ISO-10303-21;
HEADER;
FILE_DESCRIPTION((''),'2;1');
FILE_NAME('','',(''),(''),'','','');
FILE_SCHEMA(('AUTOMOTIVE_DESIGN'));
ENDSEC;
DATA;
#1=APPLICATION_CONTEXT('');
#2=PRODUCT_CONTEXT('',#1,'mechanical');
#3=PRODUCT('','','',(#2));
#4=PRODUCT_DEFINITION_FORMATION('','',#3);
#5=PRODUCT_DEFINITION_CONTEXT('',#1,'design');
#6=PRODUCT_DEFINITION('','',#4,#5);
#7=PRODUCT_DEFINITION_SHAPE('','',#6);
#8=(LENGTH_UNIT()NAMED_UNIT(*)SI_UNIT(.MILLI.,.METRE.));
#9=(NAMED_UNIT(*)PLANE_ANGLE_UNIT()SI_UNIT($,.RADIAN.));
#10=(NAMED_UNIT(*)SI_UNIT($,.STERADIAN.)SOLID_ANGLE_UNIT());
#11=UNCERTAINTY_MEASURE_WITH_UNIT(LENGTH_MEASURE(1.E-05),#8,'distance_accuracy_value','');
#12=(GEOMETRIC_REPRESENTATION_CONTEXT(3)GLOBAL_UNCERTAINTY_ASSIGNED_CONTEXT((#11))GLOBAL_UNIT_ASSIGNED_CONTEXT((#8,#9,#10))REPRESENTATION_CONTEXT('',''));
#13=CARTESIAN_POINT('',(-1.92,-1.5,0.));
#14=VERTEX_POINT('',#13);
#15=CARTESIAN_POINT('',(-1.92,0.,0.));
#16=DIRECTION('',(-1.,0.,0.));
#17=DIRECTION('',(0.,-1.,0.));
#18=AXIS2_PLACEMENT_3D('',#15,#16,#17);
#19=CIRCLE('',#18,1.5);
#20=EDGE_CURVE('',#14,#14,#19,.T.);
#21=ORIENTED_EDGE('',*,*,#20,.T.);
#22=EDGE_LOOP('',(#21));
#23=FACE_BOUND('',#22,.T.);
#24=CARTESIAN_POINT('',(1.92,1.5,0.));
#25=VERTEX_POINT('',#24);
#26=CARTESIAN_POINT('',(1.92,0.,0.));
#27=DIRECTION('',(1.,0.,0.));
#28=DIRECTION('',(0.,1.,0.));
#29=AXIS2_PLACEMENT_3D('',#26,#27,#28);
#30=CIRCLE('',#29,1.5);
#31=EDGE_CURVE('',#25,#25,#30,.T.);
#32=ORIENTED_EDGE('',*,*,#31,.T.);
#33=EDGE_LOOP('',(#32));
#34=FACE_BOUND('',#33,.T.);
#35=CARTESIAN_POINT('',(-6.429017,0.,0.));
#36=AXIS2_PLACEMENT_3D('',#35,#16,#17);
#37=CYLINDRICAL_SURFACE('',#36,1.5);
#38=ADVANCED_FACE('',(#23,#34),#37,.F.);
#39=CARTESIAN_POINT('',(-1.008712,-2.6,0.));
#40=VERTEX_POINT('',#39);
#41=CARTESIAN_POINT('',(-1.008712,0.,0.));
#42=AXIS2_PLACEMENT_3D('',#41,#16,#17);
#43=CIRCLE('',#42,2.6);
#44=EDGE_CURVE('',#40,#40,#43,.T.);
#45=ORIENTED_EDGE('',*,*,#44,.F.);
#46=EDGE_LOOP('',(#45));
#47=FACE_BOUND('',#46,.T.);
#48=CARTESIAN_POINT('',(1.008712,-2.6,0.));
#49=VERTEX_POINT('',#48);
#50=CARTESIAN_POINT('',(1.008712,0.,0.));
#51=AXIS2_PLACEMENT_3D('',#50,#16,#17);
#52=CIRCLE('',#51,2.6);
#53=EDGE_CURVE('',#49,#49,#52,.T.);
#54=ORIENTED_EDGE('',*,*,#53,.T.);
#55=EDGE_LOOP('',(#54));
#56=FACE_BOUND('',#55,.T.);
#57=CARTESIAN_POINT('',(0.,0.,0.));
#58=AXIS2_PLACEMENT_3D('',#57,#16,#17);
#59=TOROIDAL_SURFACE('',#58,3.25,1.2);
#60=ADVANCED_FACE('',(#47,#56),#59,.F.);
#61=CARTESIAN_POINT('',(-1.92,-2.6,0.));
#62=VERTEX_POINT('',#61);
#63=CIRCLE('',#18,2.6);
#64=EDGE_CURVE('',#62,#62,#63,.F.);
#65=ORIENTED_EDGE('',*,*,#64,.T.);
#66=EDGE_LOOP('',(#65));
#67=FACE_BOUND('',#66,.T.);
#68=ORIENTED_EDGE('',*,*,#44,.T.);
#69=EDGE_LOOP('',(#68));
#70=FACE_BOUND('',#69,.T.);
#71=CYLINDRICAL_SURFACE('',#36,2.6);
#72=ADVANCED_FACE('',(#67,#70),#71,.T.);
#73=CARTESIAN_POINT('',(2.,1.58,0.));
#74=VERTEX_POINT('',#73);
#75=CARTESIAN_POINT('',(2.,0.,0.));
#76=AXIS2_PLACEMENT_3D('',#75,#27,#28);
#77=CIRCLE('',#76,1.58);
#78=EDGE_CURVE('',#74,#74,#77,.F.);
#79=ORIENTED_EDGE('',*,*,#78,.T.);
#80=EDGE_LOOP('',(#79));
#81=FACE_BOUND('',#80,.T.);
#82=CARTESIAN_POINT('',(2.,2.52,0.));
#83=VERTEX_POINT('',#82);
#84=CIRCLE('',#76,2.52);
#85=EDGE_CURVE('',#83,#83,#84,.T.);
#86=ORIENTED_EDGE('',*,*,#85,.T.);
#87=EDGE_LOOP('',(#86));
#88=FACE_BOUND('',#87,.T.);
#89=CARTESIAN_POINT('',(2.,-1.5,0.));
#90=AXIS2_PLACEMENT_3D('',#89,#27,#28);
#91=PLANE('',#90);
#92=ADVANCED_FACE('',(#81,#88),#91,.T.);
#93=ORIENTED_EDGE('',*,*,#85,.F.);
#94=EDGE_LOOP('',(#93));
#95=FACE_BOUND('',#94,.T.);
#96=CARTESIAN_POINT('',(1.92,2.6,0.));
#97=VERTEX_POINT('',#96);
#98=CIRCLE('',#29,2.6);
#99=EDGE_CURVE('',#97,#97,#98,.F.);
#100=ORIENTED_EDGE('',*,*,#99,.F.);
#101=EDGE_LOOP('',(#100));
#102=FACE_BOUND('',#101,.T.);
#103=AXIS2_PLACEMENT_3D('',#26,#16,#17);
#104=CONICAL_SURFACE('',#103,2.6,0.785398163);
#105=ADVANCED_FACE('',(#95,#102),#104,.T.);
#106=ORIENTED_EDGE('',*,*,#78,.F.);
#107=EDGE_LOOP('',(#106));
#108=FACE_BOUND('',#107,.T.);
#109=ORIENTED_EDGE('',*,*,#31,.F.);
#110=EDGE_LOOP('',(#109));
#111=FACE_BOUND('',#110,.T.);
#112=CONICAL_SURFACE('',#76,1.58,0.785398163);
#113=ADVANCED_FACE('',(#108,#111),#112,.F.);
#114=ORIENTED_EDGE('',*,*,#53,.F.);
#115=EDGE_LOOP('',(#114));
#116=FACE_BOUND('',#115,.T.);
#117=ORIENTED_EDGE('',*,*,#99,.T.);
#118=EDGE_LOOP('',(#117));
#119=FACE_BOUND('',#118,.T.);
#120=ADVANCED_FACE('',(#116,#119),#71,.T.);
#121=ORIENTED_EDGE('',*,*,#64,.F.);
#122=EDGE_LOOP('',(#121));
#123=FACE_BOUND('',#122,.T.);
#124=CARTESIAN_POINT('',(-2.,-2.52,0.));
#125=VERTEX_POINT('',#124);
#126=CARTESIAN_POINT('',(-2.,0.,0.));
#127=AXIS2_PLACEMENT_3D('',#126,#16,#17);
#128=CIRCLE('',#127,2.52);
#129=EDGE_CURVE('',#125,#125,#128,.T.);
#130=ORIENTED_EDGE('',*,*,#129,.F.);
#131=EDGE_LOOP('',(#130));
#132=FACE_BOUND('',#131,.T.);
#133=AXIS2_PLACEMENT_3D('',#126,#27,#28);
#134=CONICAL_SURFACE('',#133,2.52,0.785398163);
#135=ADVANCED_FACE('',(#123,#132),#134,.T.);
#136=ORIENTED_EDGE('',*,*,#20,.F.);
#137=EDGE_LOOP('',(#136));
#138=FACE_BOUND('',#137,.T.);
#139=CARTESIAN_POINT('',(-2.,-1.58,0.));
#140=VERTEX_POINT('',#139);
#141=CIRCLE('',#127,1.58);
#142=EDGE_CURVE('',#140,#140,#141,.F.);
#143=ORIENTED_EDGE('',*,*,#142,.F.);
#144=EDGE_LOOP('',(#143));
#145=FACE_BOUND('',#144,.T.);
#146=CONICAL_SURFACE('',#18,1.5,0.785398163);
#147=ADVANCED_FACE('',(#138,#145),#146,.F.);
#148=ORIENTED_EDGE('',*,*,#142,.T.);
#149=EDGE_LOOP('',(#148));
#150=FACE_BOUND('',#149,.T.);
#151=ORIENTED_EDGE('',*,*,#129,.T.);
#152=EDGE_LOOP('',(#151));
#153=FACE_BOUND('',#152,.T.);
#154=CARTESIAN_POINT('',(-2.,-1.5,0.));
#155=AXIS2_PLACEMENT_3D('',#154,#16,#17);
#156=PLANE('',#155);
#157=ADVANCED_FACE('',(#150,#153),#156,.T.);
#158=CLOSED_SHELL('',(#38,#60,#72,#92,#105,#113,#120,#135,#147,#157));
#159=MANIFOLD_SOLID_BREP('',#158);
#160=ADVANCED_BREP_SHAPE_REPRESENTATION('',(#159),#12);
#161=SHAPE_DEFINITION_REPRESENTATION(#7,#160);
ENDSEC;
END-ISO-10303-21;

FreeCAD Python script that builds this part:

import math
import FreeCAD as App
import Part
import Sketcher

V = App.Vector


def edges_at(feature, points):
    """Names of the edges that pass closest to the given points."""
    edges = feature.Shape.Edges
    near = lambda p: min(range(len(edges)), key=lambda i: edges[i].distToShape(Part.Vertex(*p))[0])
    return sorted({f"Edge{near(p) + 1}" for p in points})

doc = App.newDocument("Part")
body = doc.addObject("PartDesign::Body", "Body")

# Sketch on XY plane
sketch1 = body.newObject("Sketcher::SketchObject", "Sketch")
sketch1.AttachmentSupport = (doc.getObject("XY_Plane"), [""])
sketch1.MapMode = "FlatFace"
sketch1.addGeometry(Part.LineSegment(V(-2, -1.5, 0), V(-2, -2.6, 0)), False)
sketch1.addGeometry(Part.LineSegment(V(-2, -2.6, 0), V(-1, -2.6, 0)), False)
sketch1.addGeometry(Part.ArcOfCircle(Part.Circle(V(0, -3.2, 0), V(0, 0, 1), 1.2), math.radians(33), math.radians(147)), False)
sketch1.addGeometry(Part.LineSegment(V(1, -2.6, 0), V(2, -2.6, 0)), False)
sketch1.addGeometry(Part.LineSegment(V(2, -2.6, 0), V(2, -1.5, 0)), False)
sketch1.addGeometry(Part.LineSegment(V(2, -1.5, 0), V(-2, -1.5, 0)), False)
sketch1.addConstraint(Sketcher.Constraint("Coincident", 0, 2, 1, 1))
sketch1.addConstraint(Sketcher.Constraint("Coincident", 1, 2, 2, 2))
sketch1.addConstraint(Sketcher.Constraint("Coincident", 2, 1, 3, 1))
sketch1.addConstraint(Sketcher.Constraint("Coincident", 3, 2, 4, 1))
sketch1.addConstraint(Sketcher.Constraint("Coincident", 4, 2, 5, 1))
sketch1.addConstraint(Sketcher.Constraint("Coincident", 5, 2, 0, 1))
sketch1.addConstraint(Sketcher.Constraint("Vertical", 0))
sketch1.addConstraint(Sketcher.Constraint("Horizontal", 1))
sketch1.addConstraint(Sketcher.Constraint("Horizontal", 3))
sketch1.addConstraint(Sketcher.Constraint("Vertical", 4))
sketch1.addConstraint(Sketcher.Constraint("Horizontal", 5))
sketch1.addConstraint(Sketcher.Constraint("Symmetric", 1, 2, 2, 1, -2))
sketch1.addConstraint(Sketcher.Constraint("Equal", 1, 3))
sketch1.addConstraint(Sketcher.Constraint("Radius", 2, 1.2))
sketch1.addConstraint(Sketcher.Constraint("DistanceX", 5, 2, 5, 1, 4.0))
sketch1.addConstraint(Sketcher.Constraint("DistanceY", 0, 2, 0, 1, 1.1))
sketch1.addConstraint(Sketcher.Constraint("DistanceY", 0, 2, -1, 1, 2.6))
sketch1.addConstraint(Sketcher.Constraint("DistanceY", 2, 3, -1, 1, 3.25))
revolution = body.newObject("PartDesign::Revolution", "Revolution")
revolution.Profile = sketch1
revolution.ReferenceAxis = (sketch1, ["H_Axis"])
revolution.Angle = 360
doc.recompute()

chamfer = body.newObject("PartDesign::Chamfer", "Chamfer")
chamfer.Base = (revolution, edges_at(revolution, [
    (-2, 1.5, 0),
    (-2, 2.6, 0),
    (2, 2.6, 0),
    (2, 1.5, 0),
]))
chamfer.Size = 0.08

doc.recompute()
